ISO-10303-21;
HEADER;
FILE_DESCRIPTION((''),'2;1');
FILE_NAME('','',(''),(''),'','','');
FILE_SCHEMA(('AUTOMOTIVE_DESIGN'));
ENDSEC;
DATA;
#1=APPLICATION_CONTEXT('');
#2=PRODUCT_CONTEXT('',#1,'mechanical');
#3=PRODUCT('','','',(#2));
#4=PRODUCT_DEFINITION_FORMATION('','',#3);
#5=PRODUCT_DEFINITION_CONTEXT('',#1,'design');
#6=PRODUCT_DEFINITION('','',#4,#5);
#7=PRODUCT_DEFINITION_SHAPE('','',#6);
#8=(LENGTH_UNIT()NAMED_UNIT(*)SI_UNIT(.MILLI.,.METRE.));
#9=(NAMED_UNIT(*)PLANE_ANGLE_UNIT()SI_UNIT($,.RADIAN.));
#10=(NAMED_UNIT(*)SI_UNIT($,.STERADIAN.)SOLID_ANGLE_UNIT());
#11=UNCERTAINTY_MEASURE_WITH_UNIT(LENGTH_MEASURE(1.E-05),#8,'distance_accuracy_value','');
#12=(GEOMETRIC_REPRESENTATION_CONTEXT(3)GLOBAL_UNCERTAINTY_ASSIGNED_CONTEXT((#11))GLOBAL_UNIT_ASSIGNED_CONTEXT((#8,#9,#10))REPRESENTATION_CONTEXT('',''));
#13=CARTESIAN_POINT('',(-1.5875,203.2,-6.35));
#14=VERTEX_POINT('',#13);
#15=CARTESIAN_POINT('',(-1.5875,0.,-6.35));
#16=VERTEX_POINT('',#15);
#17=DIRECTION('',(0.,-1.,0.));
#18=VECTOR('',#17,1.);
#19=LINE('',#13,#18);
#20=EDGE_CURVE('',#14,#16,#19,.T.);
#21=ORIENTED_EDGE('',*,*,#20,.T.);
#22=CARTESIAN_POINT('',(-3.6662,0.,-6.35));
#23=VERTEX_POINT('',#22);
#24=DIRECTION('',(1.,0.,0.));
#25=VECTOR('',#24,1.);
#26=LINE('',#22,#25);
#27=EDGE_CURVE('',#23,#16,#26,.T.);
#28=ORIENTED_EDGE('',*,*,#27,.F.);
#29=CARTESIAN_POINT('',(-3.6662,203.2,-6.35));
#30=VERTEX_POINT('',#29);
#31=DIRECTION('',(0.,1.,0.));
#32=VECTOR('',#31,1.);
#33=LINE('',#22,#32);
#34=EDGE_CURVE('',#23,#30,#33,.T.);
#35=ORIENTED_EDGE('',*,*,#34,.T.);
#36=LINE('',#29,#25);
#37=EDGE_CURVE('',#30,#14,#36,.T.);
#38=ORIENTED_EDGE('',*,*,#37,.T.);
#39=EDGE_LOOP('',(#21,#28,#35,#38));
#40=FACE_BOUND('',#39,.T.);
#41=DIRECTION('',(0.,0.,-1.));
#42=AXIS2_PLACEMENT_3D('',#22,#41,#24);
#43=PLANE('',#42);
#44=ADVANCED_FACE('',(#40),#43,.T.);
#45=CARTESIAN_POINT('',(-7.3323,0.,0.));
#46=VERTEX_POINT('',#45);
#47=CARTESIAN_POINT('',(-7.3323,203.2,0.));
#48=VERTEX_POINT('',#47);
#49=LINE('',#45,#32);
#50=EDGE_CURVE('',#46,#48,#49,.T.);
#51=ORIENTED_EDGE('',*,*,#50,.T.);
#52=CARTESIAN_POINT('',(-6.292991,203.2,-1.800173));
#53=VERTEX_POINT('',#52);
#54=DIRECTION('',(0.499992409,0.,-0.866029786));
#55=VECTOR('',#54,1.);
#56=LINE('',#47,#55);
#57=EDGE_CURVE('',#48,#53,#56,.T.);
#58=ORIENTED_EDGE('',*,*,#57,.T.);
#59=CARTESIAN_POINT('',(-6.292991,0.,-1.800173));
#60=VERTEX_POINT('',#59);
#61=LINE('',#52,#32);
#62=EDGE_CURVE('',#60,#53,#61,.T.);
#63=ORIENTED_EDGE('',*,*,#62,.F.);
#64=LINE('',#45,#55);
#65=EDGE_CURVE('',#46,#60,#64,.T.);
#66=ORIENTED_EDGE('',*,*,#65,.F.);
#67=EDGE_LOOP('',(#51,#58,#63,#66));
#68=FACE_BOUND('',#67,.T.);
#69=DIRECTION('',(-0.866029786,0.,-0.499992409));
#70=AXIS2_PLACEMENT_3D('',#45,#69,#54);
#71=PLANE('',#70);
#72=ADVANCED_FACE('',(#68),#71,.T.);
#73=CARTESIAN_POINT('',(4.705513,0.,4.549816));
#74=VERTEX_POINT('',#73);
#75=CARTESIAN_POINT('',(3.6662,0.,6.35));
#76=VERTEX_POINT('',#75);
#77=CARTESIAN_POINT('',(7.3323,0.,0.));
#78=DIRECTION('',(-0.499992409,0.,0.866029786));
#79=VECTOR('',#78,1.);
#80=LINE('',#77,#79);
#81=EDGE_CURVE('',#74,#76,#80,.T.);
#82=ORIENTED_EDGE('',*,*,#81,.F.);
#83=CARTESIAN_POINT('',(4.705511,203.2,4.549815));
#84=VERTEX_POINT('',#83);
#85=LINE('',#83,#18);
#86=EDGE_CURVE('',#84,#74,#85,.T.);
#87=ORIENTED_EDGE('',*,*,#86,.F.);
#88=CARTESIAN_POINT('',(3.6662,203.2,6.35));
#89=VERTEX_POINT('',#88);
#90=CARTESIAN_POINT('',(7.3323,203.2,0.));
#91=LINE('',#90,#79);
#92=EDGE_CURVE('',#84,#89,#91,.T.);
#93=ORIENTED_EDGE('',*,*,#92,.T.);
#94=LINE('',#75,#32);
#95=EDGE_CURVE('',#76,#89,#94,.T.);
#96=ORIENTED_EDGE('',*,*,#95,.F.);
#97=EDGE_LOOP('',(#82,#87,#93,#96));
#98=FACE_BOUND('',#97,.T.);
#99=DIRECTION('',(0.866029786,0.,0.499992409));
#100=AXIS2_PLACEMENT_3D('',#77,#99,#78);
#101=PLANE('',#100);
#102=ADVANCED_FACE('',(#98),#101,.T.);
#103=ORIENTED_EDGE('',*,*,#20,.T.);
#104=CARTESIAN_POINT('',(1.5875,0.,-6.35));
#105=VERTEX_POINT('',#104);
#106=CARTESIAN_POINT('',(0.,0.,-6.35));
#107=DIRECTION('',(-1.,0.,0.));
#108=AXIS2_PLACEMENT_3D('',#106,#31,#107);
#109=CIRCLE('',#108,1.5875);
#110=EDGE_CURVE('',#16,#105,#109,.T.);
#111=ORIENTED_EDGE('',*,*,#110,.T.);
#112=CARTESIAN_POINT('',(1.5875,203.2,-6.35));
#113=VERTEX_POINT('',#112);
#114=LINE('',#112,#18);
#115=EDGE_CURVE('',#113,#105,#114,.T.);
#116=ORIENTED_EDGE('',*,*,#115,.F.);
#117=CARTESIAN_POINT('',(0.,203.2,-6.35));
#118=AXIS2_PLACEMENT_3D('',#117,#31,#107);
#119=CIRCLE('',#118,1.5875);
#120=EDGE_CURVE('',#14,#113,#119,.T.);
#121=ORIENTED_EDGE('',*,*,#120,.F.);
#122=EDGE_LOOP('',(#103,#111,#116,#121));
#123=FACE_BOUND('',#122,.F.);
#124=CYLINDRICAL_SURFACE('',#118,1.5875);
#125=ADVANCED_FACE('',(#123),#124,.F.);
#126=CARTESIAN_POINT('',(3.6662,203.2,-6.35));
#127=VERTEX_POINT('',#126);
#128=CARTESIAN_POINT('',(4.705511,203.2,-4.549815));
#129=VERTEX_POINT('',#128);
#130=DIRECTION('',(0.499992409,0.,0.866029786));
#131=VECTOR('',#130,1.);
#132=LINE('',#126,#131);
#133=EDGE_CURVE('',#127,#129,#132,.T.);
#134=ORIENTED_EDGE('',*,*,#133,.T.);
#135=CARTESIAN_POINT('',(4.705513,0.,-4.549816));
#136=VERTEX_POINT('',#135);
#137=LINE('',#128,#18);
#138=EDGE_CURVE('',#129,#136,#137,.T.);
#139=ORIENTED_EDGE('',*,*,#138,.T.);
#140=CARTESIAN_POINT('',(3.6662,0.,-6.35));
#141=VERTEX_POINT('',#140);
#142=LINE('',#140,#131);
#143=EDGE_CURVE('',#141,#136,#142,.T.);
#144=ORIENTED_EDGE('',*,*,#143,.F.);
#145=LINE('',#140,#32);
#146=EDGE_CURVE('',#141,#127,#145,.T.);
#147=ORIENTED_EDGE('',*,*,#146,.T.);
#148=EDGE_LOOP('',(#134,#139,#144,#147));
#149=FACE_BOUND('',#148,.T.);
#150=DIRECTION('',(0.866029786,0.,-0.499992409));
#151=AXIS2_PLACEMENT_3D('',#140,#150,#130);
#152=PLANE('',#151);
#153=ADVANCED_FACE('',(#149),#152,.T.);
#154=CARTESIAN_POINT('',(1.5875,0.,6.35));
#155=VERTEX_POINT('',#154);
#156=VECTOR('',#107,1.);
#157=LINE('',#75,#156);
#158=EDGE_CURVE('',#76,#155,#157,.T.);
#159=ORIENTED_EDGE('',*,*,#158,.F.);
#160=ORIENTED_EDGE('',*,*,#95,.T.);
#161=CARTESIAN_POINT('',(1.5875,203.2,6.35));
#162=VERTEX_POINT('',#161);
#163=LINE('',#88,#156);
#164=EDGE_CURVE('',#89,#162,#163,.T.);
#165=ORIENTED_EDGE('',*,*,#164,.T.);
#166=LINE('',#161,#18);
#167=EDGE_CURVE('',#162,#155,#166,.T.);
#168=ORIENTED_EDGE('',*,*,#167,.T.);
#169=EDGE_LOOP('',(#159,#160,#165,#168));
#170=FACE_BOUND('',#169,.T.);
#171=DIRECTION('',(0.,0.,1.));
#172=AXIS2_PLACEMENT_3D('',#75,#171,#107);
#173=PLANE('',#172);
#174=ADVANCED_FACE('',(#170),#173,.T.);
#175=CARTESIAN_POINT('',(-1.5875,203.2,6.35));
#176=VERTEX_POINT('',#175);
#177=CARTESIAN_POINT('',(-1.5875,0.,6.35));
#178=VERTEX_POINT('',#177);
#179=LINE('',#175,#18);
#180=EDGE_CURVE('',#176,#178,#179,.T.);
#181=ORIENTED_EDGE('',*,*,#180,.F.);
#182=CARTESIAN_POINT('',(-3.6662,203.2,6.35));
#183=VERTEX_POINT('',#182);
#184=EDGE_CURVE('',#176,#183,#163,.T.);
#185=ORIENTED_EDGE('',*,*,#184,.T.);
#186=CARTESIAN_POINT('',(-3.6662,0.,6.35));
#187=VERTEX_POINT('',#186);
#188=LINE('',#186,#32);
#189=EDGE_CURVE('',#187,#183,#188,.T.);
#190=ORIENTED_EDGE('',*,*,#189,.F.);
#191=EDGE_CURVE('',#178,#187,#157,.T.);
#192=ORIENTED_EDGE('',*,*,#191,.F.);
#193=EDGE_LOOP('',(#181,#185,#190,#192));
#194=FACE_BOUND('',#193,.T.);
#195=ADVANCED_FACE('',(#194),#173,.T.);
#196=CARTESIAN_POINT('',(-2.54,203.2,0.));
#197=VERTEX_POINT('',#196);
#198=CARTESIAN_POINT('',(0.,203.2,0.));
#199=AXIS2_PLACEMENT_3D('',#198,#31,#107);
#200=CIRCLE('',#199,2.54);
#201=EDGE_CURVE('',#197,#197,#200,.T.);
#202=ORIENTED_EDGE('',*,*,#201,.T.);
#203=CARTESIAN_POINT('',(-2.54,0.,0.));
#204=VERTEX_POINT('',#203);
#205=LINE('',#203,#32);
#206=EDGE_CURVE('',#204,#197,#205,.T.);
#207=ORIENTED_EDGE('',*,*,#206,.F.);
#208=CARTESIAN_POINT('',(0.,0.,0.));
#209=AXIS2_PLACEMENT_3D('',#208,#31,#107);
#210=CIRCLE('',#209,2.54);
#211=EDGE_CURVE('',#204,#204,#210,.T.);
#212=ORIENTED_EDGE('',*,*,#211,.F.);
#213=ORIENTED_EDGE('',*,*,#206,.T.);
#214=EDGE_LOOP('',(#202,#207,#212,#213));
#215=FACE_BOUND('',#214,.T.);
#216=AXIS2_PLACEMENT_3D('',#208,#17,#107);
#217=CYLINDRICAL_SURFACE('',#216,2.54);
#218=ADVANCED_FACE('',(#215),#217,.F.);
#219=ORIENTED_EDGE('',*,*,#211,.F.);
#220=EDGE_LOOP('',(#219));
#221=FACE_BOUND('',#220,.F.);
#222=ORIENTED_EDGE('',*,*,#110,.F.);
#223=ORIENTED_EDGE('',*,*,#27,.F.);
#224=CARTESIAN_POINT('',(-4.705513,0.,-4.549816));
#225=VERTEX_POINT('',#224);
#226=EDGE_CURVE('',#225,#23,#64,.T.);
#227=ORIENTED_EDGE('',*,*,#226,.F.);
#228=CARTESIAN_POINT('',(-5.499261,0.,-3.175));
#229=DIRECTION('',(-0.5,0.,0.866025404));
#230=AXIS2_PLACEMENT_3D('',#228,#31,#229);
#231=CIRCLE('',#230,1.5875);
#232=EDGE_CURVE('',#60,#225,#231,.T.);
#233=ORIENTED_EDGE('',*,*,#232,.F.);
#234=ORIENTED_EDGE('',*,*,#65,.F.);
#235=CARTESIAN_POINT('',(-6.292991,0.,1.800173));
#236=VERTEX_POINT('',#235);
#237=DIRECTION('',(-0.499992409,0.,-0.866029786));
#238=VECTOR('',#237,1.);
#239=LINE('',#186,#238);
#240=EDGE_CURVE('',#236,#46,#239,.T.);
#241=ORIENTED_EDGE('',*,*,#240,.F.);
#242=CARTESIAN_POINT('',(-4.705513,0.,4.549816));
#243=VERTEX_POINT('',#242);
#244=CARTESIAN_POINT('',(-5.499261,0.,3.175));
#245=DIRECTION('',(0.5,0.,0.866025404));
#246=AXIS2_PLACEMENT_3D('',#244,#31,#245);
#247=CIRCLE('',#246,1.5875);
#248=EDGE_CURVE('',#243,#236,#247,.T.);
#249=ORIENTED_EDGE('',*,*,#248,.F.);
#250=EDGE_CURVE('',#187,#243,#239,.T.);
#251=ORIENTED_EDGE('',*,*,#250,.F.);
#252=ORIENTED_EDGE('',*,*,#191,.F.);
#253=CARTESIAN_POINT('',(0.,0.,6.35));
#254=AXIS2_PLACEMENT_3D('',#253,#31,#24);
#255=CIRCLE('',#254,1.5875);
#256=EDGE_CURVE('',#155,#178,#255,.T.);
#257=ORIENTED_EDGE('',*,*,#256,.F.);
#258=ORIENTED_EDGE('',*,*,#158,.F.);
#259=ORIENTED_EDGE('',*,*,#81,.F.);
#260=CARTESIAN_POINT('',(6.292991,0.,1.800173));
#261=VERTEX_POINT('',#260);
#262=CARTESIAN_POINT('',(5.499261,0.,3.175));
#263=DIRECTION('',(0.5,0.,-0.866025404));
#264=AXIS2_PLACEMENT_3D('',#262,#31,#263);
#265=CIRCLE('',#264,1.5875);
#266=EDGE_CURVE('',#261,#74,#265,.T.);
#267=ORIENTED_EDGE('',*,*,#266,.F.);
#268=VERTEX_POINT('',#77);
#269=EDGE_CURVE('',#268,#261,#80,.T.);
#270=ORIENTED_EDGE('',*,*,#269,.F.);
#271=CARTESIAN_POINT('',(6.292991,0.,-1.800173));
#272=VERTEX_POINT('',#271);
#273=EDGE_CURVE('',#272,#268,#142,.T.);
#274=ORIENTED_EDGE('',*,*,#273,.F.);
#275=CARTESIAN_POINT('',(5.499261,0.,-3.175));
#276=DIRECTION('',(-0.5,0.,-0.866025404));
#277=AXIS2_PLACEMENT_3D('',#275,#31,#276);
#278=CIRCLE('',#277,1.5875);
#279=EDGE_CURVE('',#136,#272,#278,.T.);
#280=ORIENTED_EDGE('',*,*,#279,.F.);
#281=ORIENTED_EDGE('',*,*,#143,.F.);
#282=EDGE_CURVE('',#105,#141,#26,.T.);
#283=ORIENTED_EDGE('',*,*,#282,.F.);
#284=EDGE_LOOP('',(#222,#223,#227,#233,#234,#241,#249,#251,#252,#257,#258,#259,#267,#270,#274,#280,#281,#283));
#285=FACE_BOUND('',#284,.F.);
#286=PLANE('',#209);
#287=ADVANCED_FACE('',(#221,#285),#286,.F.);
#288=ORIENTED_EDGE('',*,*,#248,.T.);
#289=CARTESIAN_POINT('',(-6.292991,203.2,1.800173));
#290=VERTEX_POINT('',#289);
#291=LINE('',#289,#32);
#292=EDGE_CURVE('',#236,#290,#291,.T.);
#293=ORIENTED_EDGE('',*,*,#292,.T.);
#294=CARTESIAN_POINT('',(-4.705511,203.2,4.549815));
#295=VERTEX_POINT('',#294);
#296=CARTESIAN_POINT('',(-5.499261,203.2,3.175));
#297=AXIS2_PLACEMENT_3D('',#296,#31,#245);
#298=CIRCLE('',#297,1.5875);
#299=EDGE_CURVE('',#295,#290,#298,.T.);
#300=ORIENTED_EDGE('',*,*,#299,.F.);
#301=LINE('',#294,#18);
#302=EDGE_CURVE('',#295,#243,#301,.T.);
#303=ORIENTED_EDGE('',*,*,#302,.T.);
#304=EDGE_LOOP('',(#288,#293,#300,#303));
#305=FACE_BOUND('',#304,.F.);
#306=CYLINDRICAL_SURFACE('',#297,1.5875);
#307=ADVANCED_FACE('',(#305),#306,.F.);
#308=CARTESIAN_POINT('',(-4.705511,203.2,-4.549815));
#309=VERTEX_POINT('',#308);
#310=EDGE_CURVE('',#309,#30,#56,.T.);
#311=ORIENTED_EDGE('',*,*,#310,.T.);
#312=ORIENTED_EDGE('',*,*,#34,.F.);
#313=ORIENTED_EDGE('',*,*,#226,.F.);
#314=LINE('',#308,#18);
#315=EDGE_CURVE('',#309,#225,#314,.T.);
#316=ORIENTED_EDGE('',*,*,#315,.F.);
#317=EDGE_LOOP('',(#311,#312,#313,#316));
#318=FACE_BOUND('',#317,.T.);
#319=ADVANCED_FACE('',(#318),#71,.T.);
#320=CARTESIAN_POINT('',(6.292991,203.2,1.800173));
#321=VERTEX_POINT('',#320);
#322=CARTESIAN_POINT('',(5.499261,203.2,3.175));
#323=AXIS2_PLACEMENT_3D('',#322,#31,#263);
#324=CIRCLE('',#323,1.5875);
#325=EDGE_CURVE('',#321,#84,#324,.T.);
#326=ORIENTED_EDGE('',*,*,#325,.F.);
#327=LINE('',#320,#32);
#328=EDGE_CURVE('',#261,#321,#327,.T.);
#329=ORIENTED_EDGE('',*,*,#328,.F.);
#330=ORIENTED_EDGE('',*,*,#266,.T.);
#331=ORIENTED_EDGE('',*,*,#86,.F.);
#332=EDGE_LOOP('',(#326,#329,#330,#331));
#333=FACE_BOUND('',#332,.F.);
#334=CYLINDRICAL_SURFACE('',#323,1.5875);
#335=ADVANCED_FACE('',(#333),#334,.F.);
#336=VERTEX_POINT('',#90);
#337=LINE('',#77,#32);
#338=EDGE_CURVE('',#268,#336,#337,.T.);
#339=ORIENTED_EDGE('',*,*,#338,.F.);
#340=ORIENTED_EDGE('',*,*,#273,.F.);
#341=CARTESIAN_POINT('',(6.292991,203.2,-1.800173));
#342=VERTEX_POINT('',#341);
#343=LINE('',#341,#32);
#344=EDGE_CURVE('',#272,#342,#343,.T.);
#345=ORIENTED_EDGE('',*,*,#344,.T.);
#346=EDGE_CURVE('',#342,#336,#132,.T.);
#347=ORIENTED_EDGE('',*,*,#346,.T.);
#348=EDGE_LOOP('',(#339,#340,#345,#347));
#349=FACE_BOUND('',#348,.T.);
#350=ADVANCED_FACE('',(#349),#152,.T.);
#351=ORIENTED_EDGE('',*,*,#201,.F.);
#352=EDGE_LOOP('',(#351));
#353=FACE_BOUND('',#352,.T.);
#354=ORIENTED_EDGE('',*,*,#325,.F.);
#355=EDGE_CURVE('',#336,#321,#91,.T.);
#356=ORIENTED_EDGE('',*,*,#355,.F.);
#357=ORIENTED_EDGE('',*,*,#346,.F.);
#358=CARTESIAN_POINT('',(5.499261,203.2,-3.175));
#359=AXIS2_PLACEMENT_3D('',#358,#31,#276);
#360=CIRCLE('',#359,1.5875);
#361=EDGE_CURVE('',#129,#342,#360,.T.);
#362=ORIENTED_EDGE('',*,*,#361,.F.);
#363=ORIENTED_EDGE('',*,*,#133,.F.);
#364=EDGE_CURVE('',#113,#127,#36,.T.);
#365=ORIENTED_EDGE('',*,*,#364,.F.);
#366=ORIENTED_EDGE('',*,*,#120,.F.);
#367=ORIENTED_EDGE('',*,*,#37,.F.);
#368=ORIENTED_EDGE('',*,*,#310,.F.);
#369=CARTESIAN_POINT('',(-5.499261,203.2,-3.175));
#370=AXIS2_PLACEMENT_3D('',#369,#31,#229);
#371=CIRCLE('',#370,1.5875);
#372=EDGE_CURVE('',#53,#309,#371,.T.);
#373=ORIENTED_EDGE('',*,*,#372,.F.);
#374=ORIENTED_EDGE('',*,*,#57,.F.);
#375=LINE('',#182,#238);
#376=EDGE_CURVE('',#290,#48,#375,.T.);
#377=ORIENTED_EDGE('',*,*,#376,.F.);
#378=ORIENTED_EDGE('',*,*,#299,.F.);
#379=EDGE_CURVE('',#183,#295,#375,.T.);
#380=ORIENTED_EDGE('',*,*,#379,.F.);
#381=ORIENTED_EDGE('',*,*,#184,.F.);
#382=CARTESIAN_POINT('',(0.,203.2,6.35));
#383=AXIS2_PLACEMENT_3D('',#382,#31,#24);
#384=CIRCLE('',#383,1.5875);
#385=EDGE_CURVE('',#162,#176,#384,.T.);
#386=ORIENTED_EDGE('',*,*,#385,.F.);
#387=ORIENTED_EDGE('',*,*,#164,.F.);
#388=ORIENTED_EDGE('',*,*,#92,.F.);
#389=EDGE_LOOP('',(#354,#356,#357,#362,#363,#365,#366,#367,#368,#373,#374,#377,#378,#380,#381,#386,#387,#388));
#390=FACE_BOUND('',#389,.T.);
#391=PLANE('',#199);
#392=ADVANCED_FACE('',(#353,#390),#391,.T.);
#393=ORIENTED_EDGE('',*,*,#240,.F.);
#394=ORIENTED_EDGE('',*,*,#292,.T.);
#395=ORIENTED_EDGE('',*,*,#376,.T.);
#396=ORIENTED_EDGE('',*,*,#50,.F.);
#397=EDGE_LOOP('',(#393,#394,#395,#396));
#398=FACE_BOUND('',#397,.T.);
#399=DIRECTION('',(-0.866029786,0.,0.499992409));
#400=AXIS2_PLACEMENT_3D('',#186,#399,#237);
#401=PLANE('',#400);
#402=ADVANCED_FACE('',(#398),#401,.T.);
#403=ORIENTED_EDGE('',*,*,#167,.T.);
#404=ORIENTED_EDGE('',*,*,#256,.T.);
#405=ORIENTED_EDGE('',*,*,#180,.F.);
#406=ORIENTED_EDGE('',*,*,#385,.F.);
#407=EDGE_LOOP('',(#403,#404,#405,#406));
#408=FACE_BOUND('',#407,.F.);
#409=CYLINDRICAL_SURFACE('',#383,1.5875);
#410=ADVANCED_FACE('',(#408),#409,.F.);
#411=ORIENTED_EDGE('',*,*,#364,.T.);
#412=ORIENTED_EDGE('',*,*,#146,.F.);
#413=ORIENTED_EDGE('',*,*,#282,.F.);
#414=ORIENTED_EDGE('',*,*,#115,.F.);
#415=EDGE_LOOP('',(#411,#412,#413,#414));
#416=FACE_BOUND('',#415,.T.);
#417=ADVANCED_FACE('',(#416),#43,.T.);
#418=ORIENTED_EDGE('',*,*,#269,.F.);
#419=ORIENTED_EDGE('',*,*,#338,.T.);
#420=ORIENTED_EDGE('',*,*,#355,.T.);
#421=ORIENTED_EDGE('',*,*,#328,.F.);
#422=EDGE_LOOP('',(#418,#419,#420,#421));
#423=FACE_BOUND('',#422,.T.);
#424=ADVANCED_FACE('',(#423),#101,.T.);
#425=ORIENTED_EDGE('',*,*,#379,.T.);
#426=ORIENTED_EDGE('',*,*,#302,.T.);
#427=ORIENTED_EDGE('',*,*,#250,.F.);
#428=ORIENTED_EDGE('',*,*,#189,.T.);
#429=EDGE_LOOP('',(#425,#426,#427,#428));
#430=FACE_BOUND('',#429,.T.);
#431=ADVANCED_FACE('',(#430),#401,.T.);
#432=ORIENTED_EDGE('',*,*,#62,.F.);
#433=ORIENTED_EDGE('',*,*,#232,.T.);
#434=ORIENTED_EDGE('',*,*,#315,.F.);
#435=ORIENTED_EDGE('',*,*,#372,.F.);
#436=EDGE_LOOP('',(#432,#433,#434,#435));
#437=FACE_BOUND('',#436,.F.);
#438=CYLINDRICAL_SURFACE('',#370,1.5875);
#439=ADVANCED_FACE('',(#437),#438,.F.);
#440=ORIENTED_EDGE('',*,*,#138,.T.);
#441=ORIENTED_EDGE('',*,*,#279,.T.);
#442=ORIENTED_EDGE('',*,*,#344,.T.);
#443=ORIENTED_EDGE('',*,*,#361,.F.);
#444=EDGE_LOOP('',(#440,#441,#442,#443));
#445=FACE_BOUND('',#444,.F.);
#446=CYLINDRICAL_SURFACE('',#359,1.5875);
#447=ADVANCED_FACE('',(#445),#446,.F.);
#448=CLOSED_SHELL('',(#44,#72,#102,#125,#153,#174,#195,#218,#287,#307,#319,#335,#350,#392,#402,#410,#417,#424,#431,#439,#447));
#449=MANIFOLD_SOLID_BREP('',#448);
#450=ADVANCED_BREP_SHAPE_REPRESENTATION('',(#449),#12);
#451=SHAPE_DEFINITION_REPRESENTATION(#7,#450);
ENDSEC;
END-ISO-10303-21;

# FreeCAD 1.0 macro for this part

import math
import FreeCAD as App
import Part
import Sketcher
Q = App.Units.Quantity

doc = App.newDocument("Part")
params = doc.addObject("Spreadsheet::Sheet", "Params")
for row, (alias, value) in enumerate([
    ("sketch1_diameter", "0.2 in"),
    ("pad1_length", "8 in"),
    ("sketch2_radius", "0.0625 in"),
], start=1):
    params.set(f"A{row}", alias)
    params.set(f"B{row}", "=" + value)
    params.setAlias(f"B{row}", alias)

body = doc.addObject("PartDesign::Body", "Body")

# Sketch on XZ plane
sketch1 = doc.addObject("Sketcher::SketchObject", "Sketch")
body.addObject(sketch1)
sketch1.AttachmentSupport = (doc.XZ_Plane, [""])
sketch1.MapMode = "FlatFace"
sketch1.addGeometry([
    Part.LineSegment(App.Vector(-3.6662, 6.35, 0), App.Vector(3.6662, 6.35, 0)),  # 0
    Part.LineSegment(App.Vector(3.6662, 6.35, 0), App.Vector(7.3323, 0, 0)),  # 1
    Part.LineSegment(App.Vector(7.3323, 0, 0), App.Vector(3.6662, -6.35, 0)),  # 2
    Part.LineSegment(App.Vector(3.6662, -6.35, 0), App.Vector(-3.6662, -6.35, 0)),  # 3
    Part.LineSegment(App.Vector(-3.6662, -6.35, 0), App.Vector(-7.3323, 0, 0)),  # 4
    Part.LineSegment(App.Vector(-7.3323, 0, 0), App.Vector(-3.6662, 6.35, 0)),  # 5
    Part.Circle(App.Vector(0, 0, 0), App.Vector(0, 0, 1), 2.54),  # 6
], False)
sketch1.addConstraint([
    Sketcher.Constraint("Coincident", 0, 2, 1, 1),
    Sketcher.Constraint("Coincident", 1, 2, 2, 1),
    Sketcher.Constraint("Coincident", 2, 2, 3, 1),
    Sketcher.Constraint("Coincident", 3, 2, 4, 1),
    Sketcher.Constraint("Coincident", 4, 2, 5, 1),
    Sketcher.Constraint("Coincident", 5, 2, 0, 1),
    Sketcher.Constraint("Horizontal", 0),
    Sketcher.Constraint("Horizontal", 3),
    Sketcher.Constraint("Coincident", 6, 3, -1, 1),
    Sketcher.Constraint("Symmetric", 0, 2, 3, 2, -1, 1),
    Sketcher.Constraint("Symmetric", 1, 2, 4, 2, -1, 1),
    Sketcher.Constraint("PointOnObject", 1, 2, -1),
    Sketcher.Constraint("Parallel", 2, 5),
    Sketcher.Constraint("Vertical", 0, 2, 2, 2),
    Sketcher.Constraint("Diameter", 6, Q("0.2 in")),
    Sketcher.Constraint("DistanceY", 2, 2, 0, 2, Q("0.5 in")),
    Sketcher.Constraint("Angle", 1, Q("-60.0005 deg")),
    Sketcher.Constraint("DistanceX", 3, 2, 1, 2, Q("0.433 in")),
])
sketch1.setExpression("Constraints[14]", "Params.sketch1_diameter")
pad1 = doc.addObject("PartDesign::Pad", "Pad")
body.addObject(pad1)
pad1.Profile = sketch1
pad1.setExpression("Length", "Params.pad1_length")
pad1.Reversed = True

# Sketch on XZ plane
sketch2 = doc.addObject("Sketcher::SketchObject", "Sketch001")
body.addObject(sketch2)
sketch2.AttachmentSupport = (doc.XZ_Plane, [""])
sketch2.MapMode = "FlatFace"
sketch2.AttachmentOffset = App.Placement(App.Vector(0, 0, -8 * 25.4), App.Rotation())
sketch2.addGeometry([
    Part.LineSegment(App.Vector(1.5875, -6.35, 0), App.Vector(-1.5875, -6.35, 0)),
    Part.ArcOfCircle(Part.Circle(App.Vector(0, -6.35, 0), App.Vector(0, 0, 1), 1.5875), math.radians(0), math.radians(180)),
], False)
sketch2.addConstraint([
    Sketcher.Constraint("Coincident", 0, 1, 1, 1),
    Sketcher.Constraint("Coincident", 1, 2, 0, 2),
    Sketcher.Constraint("Horizontal", 0),
    Sketcher.Constraint("PointOnObject", 1, 3, -2),
    Sketcher.Constraint("Horizontal", 1, 3, 0, 1),
    Sketcher.Constraint("Radius", 1, Q("0.0625 in")),
    Sketcher.Constraint("DistanceY", 1, 3, -1, 1, Q("0.25 in")),
])
sketch2.setExpression("Constraints[5]", "Params.sketch2_radius")
pocket1 = doc.addObject("PartDesign::Pocket", "Pocket")
body.addObject(pocket1)
pocket1.Profile = sketch2
pocket1.Type = "ThroughAll"
pocket1.Reversed = True
doc.recompute()

polarpattern = doc.addObject("PartDesign::PolarPattern", "PolarPattern")
body.addObject(polarpattern)
polarpattern.Originals = [pocket1]
polarpattern.Axis = (doc.Y_Axis, [""])
polarpattern.Angle = 360
polarpattern.Occurrences = 6
body.Tip = polarpattern

doc.recompute()
